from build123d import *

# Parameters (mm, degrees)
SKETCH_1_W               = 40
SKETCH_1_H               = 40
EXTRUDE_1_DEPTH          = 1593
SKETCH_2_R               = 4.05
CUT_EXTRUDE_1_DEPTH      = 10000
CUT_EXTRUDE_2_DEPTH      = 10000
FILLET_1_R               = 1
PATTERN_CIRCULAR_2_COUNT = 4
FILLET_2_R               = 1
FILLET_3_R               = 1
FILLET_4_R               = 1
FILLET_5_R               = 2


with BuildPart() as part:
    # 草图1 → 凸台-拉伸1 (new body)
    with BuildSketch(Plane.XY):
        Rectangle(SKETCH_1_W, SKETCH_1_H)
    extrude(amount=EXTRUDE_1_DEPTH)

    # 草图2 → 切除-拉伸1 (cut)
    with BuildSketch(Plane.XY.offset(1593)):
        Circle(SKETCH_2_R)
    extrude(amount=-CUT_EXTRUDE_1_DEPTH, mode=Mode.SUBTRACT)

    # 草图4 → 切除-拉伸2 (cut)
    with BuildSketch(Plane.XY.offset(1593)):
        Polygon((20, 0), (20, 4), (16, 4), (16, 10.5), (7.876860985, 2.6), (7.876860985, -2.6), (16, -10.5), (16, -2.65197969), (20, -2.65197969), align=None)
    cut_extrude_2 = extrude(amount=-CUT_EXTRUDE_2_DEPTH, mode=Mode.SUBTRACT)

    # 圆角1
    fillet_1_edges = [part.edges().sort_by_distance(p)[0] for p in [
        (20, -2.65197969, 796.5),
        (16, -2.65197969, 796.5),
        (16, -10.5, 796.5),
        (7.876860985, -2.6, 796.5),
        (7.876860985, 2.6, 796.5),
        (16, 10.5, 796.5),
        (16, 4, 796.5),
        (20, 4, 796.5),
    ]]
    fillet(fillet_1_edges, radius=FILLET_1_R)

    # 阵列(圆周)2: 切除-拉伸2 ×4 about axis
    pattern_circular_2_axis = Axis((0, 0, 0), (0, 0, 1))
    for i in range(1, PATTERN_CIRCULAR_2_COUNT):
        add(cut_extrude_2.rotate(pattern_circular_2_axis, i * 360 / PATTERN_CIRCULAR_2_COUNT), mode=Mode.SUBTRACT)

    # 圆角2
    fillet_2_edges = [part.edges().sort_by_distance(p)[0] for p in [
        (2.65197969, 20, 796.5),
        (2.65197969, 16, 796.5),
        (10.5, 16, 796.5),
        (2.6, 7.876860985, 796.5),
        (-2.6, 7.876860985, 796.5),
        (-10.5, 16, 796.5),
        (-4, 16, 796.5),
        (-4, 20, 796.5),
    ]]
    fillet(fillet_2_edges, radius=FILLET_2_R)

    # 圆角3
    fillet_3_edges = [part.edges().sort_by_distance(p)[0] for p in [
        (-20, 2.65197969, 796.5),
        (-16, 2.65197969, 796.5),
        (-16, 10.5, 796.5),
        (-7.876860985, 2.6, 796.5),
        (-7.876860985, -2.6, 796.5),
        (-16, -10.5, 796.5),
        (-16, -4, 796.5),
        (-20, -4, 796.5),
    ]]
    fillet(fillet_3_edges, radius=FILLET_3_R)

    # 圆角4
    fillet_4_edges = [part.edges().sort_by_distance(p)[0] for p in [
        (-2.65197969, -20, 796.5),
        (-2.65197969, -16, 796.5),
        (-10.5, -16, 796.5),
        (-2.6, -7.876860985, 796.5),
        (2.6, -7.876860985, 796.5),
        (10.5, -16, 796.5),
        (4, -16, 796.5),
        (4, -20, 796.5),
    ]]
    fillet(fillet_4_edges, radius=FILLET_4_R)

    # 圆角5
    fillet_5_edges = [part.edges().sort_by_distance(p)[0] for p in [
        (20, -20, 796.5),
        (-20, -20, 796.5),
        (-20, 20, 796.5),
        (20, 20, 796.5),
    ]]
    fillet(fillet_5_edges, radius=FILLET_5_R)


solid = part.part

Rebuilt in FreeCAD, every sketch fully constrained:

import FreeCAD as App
import Part
import Sketcher

V = App.Vector
Q = App.Units.Quantity


def edges_at(feature, points):
    """Names of the edges that pass closest to the given points."""
    edges = feature.Shape.Edges
    near = lambda p: min(range(len(edges)), key=lambda i: edges[i].distToShape(Part.Vertex(*p))[0])
    return sorted({f"Edge{near(p) + 1}" for p in points})

doc = App.newDocument("Part")
body = doc.addObject("PartDesign::Body", "Body")

# Sketch on XY plane
sketch1 = body.newObject("Sketcher::SketchObject", "Sketch")
sketch1.AttachmentSupport = (doc.getObject("XY_Plane"), [""])
sketch1.MapMode = "FlatFace"
sketch1.addGeometry([
    Part.LineSegment(V(-20, 20, 0), V(-20, -20, 0)),
    Part.LineSegment(V(-20, -20, 0), V(20, -20, 0)),
    Part.LineSegment(V(20, -20, 0), V(20, 20, 0)),
    Part.LineSegment(V(20, 20, 0), V(-20, 20, 0)),
], False)
sketch1.addConstraint([
    Sketcher.Constraint("Coincident", 0, 2, 1, 1),
    Sketcher.Constraint("Coincident", 1, 2, 2, 1),
    Sketcher.Constraint("Coincident", 2, 2, 3, 1),
    Sketcher.Constraint("Coincident", 3, 2, 0, 1),
    Sketcher.Constraint("Vertical", 0),
    Sketcher.Constraint("Horizontal", 1),
    Sketcher.Constraint("Vertical", 2),
    Sketcher.Constraint("Horizontal", 3),
    Sketcher.Constraint("Symmetric", 0, 2, 2, 2, -1, 1),
    Sketcher.Constraint("Equal", 3, 0),
    Sketcher.Constraint("DistanceX", 1, 1, 1, 2, Q("40 mm")),
])
pad1 = body.newObject("PartDesign::Pad", "Pad")
pad1.Profile = sketch1
pad1.Length = 1593

# Sketch on XY plane
sketch2 = body.newObject("Sketcher::SketchObject", "Sketch001")
sketch2.AttachmentSupport = (doc.getObject("XY_Plane"), [""])
sketch2.MapMode = "FlatFace"
sketch2.AttachmentOffset = App.Placement(V(0, 0, 1593), App.Rotation())
sketch2.addGeometry(Part.Circle(V(0, 0, 0), V(0, 0, 1), 4), False)
sketch2.addConstraint([
    Sketcher.Constraint("Coincident", 0, 3, -1, 1),
    Sketcher.Constraint("Diameter", 0, Q("8.1 mm")),
])
pocket1 = body.newObject("PartDesign::Pocket", "Pocket")
pocket1.Profile = sketch2
pocket1.Length = 10000

# Sketch on XY plane
sketch3 = body.newObject("Sketcher::SketchObject", "Sketch002")
sketch3.AttachmentSupport = (doc.getObject("XY_Plane"), [""])
sketch3.MapMode = "FlatFace"
sketch3.AttachmentOffset = App.Placement(V(0, 0, 1593), App.Rotation())
sketch3.addGeometry([
    Part.LineSegment(V(20, 4, 0), V(16, 4, 0)),  # 0
    Part.LineSegment(V(16, 4, 0), V(16, 10.5, 0)),  # 1
    Part.LineSegment(V(16, 10.5, 0), V(7.9, 2.6, 0)),  # 2
    Part.LineSegment(V(7.9, 2.6, 0), V(7.9, -2.6, 0)),  # 3
    Part.LineSegment(V(7.9, -2.6, 0), V(16, -10.5, 0)),  # 4
    Part.LineSegment(V(16, -10.5, 0), V(16, -2.7, 0)),  # 5
    Part.LineSegment(V(16, -2.7, 0), V(20, -2.7, 0)),  # 6
    Part.LineSegment(V(20, -2.7, 0), V(20, 4, 0)),  # 7
], False)
sketch3.addConstraint([
    Sketcher.Constraint("Coincident", 0, 2, 1, 1),
    Sketcher.Constraint("Coincident", 1, 2, 2, 1),
    Sketcher.Constraint("Coincident", 2, 2, 3, 1),
    Sketcher.Constraint("Coincident", 3, 2, 4, 1),
    Sketcher.Constraint("Coincident", 4, 2, 5, 1),
    Sketcher.Constraint("Coincident", 5, 2, 6, 1),
    Sketcher.Constraint("Coincident", 6, 2, 7, 1),
    Sketcher.Constraint("Coincident", 7, 2, 0, 1),
    Sketcher.Constraint("Horizontal", 0),
    Sketcher.Constraint("Vertical", 1),
    Sketcher.Constraint("Vertical", 3),
    Sketcher.Constraint("Vertical", 5),
    Sketcher.Constraint("Horizontal", 6),
    Sketcher.Constraint("Vertical", 7),
    Sketcher.Constraint("Symmetric", 1, 2, 4, 2, -1),
    Sketcher.Constraint("Equal", 2, 4),
    Sketcher.Constraint("DistanceX", 0, 2, 0, 1, Q("4 mm")),
    Sketcher.Constraint("DistanceY", 1, 1, 1, 2, Q("6.5 mm")),
    Sketcher.Constraint("DistanceY", 3, 2, 3, 1, Q("5.2 mm")),
    Sketcher.Constraint("DistanceX", -1, 1, 0, 2, Q("16 mm")),
    Sketcher.Constraint("DistanceY", -1, 1, 0, 2, Q("4 mm")),
    Sketcher.Constraint("DistanceY", 5, 1, 5, 2, Q("7.84802 mm")),
    Sketcher.Constraint("Distance", 2, Q("11.331169 mm")),
])
pocket2 = body.newObject("PartDesign::Pocket", "Pocket001")
pocket2.Profile = sketch3
pocket2.Length = 10000
doc.recompute()

fillet = body.newObject("PartDesign::Fillet", "Fillet")
fillet.Base = (pocket2, edges_at(pocket2, [
    (20, -2.652, 796.5),
    (16, -2.652, 796.5),
    (16, -10.5, 796.5),
    (7.877, -2.6, 796.5),
    (7.877, 2.6, 796.5),
    (16, 10.5, 796.5),
    (16, 4, 796.5),
    (20, 4, 796.5),
]))
fillet.Radius = 1
doc.recompute()

polarpattern = body.newObject("PartDesign::PolarPattern", "PolarPattern")
polarpattern.Originals = [pocket2]
polarpattern.Axis = (doc.getObject("Z_Axis"), [""])
polarpattern.Angle = 360
polarpattern.Occurrences = 4
body.Tip = polarpattern
doc.recompute()

fillet2 = body.newObject("PartDesign::Fillet", "Fillet001")
fillet2.Base = (polarpattern, edges_at(polarpattern, [
    (2.652, 20, 796.5),
    (2.652, 16, 796.5),
    (10.5, 16, 796.5),
    (2.6, 7.877, 796.5),
    (-2.6, 7.877, 796.5),
    (-10.5, 16, 796.5),
    (-4, 16, 796.5),
    (-4, 20, 796.5),
]))
fillet2.Radius = 1
doc.recompute()

fillet3 = body.newObject("PartDesign::Fillet", "Fillet002")
fillet3.Base = (fillet2, edges_at(fillet2, [
    (-20, 2.652, 796.5),
    (-16, 2.652, 796.5),
    (-16, 10.5, 796.5),
    (-7.877, 2.6, 796.5),
    (-7.877, -2.6, 796.5),
    (-16, -10.5, 796.5),
    (-16, -4, 796.5),
    (-20, -4, 796.5),
]))
fillet3.Radius = 1
doc.recompute()

fillet4 = body.newObject("PartDesign::Fillet", "Fillet003")
fillet4.Base = (fillet3, edges_at(fillet3, [
    (-2.652, -20, 796.5),
    (-2.652, -16, 796.5),
    (-10.5, -16, 796.5),
    (-2.6, -7.877, 796.5),
    (2.6, -7.877, 796.5),
    (10.5, -16, 796.5),
    (4, -16, 796.5),
    (4, -20, 796.5),
]))
fillet4.Radius = 1
doc.recompute()

fillet5 = body.newObject("PartDesign::Fillet", "Fillet004")
fillet5.Base = (fillet4, edges_at(fillet4, [
    (20, -20, 796.5),
    (-20, -20, 796.5),
    (-20, 20, 796.5),
    (20, 20, 796.5),
]))
fillet5.Radius = 2

doc.recompute()
